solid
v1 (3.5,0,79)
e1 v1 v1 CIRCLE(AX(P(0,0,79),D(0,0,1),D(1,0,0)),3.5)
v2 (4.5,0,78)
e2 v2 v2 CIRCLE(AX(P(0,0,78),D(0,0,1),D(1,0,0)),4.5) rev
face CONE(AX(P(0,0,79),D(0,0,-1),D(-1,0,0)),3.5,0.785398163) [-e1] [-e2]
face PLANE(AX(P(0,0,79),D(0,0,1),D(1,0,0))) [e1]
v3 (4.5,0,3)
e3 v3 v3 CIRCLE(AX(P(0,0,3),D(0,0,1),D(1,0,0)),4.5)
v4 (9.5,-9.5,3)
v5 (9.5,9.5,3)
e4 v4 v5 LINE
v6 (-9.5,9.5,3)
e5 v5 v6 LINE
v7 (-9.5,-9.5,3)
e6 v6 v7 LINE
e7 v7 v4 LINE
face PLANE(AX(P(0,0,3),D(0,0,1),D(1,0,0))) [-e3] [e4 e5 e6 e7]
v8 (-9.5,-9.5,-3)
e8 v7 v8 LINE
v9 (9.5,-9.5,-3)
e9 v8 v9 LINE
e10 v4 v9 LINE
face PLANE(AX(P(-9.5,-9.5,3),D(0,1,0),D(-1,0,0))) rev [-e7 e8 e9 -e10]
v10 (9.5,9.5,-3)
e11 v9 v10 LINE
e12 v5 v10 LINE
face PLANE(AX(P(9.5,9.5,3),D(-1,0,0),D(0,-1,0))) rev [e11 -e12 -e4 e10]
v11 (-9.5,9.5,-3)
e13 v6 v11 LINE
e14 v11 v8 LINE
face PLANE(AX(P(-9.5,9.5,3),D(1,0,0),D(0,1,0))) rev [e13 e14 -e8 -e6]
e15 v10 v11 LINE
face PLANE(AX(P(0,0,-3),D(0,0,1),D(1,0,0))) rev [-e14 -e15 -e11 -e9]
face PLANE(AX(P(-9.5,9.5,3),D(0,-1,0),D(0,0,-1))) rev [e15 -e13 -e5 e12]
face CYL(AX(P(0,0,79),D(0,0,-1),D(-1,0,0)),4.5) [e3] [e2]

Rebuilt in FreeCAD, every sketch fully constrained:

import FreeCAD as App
import Part
import Sketcher
from FreeCAD import Vector
Q = App.Units.Quantity


def edges_at(feature, points):
    """Names of the edges that pass closest to the given points."""
    edges = feature.Shape.Edges
    near = lambda p: min(range(len(edges)), key=lambda i: edges[i].distToShape(Part.Vertex(*p))[0])
    return sorted({f"Edge{near(p) + 1}" for p in points})

doc = App.newDocument("Part")
params = doc.addObject("Spreadsheet::Sheet", "Params")
for row, (alias, value) in enumerate([
    ("sketch1_width", "19 mm"),
    ("pad1_length", "6 mm"),
    ("sketch2_diameter", "9 mm"),
    ("pad2_length", "76 mm"),
    ("chamfer_size", "1 mm"),
], start=1):
    params.set(f"A{row}", alias)
    params.set(f"B{row}", "=" + value)
    params.setAlias(f"B{row}", alias)

body = doc.addObject("PartDesign::Body", "Body")

sketch1 = body.newObject("Sketcher::SketchObject", "Sketch")
sketch1.AttachmentSupport = (doc.getObject("XY_Plane"), [""])
sketch1.MapMode = "FlatFace"
sketch1.addGeometry(Part.LineSegment(Vector(-9.5, 9.5, 0), Vector(-9.5, -9.5, 0)), False)
sketch1.addGeometry(Part.LineSegment(Vector(-9.5, -9.5, 0), Vector(9.5, -9.5, 0)), False)
sketch1.addGeometry(Part.LineSegment(Vector(9.5, -9.5, 0), Vector(9.5, 9.5, 0)), False)
sketch1.addGeometry(Part.LineSegment(Vector(9.5, 9.5, 0), Vector(-9.5, 9.5, 0)), False)
sketch1.addConstraint(Sketcher.Constraint("Coincident", 0, 2, 1, 1))
sketch1.addConstraint(Sketcher.Constraint("Coincident", 1, 2, 2, 1))
sketch1.addConstraint(Sketcher.Constraint("Coincident", 2, 2, 3, 1))
sketch1.addConstraint(Sketcher.Constraint("Coincident", 3, 2, 0, 1))
sketch1.addConstraint(Sketcher.Constraint("Vertical", 0))
sketch1.addConstraint(Sketcher.Constraint("Horizontal", 1))
sketch1.addConstraint(Sketcher.Constraint("Vertical", 2))
sketch1.addConstraint(Sketcher.Constraint("Horizontal", 3))
sketch1.addConstraint(Sketcher.Constraint("Symmetric", 0, 2, 2, 2, -1, 1))
sketch1.addConstraint(Sketcher.Constraint("Equal", 3, 0))
sketch1.addConstraint(Sketcher.Constraint("DistanceX", 1, 1, 1, 2, Q("19 mm")))
sketch1.setExpression("Constraints[10]", "Params.sketch1_width")
pad1 = body.newObject("PartDesign::Pad", "Pad")
pad1.Profile = sketch1
pad1.setExpression("Length", "Params.pad1_length")
pad1.Midplane = True

sketch2 = body.newObject("Sketcher::SketchObject", "Sketch001")
sketch2.AttachmentSupport = (doc.getObject("XY_Plane"), [""])
sketch2.MapMode = "FlatFace"
sketch2.AttachmentOffset = App.Placement(Vector(0, 0, 3), App.Rotation())
sketch2.addGeometry(Part.Circle(Vector(0, 0, 0), Vector(0, 0, 1), 4.5), False)
sketch2.addConstraint(Sketcher.Constraint("Coincident", 0, 3, -1, 1))
sketch2.addConstraint(Sketcher.Constraint("Diameter", 0, Q("9 mm")))
sketch2.setExpression("Constraints[1]", "Params.sketch2_diameter")
pad2 = body.newObject("PartDesign::Pad", "Pad001")
pad2.Profile = sketch2
pad2.setExpression("Length", "Params.pad2_length")
doc.recompute()

chamfer = body.newObject("PartDesign::Chamfer", "Chamfer")
chamfer.Base = (pad2, edges_at(pad2, [(-4.5, 0, 79)]))
chamfer.setExpression("Size", "Params.chamfer_size")

doc.recompute()
